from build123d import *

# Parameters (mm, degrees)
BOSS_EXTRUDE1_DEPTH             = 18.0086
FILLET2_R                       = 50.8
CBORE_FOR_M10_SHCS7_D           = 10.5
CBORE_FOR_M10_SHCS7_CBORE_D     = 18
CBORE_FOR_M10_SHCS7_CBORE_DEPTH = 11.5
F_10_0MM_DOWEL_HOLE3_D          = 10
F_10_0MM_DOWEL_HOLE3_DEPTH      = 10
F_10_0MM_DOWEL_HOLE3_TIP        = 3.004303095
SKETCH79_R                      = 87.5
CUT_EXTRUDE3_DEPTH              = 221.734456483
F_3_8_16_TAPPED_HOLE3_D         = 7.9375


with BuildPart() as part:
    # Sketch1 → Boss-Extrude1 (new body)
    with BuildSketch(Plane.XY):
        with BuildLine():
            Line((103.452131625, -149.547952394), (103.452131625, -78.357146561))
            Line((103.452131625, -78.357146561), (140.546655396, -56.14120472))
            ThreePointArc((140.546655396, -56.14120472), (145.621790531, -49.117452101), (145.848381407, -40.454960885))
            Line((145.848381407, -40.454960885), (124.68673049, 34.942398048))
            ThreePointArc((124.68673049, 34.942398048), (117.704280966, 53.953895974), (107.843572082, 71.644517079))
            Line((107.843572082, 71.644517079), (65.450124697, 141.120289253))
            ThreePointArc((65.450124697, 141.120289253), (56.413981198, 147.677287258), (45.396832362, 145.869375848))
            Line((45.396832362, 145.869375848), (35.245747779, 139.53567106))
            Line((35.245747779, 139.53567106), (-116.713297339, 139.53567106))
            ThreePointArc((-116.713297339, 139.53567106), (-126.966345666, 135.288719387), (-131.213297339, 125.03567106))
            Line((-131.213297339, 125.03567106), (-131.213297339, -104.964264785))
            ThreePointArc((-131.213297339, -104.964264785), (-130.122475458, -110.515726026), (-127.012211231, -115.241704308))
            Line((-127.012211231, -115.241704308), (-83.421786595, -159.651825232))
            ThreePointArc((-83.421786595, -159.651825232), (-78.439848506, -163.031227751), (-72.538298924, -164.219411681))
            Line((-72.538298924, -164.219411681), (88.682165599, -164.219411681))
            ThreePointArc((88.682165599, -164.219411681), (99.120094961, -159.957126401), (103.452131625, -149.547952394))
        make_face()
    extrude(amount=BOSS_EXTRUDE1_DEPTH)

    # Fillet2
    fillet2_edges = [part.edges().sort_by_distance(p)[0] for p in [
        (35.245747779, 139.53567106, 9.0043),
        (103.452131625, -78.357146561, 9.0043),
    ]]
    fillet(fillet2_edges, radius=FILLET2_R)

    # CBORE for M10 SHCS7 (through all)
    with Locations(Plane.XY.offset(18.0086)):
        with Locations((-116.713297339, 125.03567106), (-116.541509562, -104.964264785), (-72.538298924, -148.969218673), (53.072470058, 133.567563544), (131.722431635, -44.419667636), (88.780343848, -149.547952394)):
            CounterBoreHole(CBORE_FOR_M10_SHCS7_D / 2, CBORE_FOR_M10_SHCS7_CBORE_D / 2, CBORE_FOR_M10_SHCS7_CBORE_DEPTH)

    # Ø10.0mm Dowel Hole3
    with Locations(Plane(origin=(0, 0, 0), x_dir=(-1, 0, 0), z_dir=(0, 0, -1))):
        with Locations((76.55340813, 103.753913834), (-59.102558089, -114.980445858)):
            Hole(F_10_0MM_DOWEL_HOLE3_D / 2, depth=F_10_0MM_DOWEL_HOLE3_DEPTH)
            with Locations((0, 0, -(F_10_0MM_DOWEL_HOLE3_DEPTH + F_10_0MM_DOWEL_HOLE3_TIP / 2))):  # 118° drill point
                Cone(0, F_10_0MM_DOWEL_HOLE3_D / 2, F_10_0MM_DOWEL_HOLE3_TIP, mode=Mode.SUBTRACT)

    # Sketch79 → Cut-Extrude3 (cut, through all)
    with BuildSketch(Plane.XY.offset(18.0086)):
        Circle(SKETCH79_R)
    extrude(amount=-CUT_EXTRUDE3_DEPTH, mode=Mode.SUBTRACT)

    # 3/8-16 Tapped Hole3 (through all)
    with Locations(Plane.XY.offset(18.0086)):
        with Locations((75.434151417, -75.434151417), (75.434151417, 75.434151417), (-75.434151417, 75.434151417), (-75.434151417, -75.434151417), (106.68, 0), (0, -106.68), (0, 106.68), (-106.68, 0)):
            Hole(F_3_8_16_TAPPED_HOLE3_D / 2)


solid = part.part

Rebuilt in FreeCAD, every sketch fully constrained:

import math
import FreeCAD as App
import Part
import Sketcher

V = App.Vector


def edges_at(feature, points):
    """Names of the edges that pass closest to the given points."""
    edges = feature.Shape.Edges
    near = lambda p: min(range(len(edges)), key=lambda i: edges[i].distToShape(Part.Vertex(*p))[0])
    return sorted({f"Edge{near(p) + 1}" for p in points})

doc = App.newDocument("Part")
body = doc.addObject("PartDesign::Body", "Body")

# Sketch on XY plane
sketch1 = body.newObject("Sketcher::SketchObject", "Sketch")
sketch1.AttachmentSupport = (doc.getObject("XY_Plane"), [""])
sketch1.MapMode = "FlatFace"
sketch1.addGeometry([
    Part.LineSegment(V(103.452132, -149.547952, 0), V(103.452132, -78.357147, 0)),  # 0
    Part.LineSegment(V(103.452132, -78.357147, 0), V(140.546655, -56.141205, 0)),  # 1
    Part.ArcOfCircle(Part.Circle(V(131.722432, -44.419668, 0), V(0, 0, 1), 14.671788), math.radians(-53.026784), math.radians(15.677749)),  # 2
    Part.LineSegment(V(145.848381, -40.454961, 0), V(124.68673, 34.942398, 0)),  # 3
    Part.ArcOfCircle(Part.Circle(V(-0.017035, -0.070199, 0), V(0, 0, 1), 129.525716), math.radians(15.682945), math.radians(33.61927)),  # 4
    Part.LineSegment(V(107.843572, 71.644517, 0), V(65.450125, 141.120289, 0)),  # 5
    Part.ArcOfCircle(Part.Circle(V(53.07247, 133.567564, 0), V(0, 0, 1), 14.5), math.radians(31.39114), math.radians(121.961839)),  # 6
    Part.LineSegment(V(45.396832, 145.869376, 0), V(35.245748, 139.535671, 0)),  # 7
    Part.LineSegment(V(35.245748, 139.535671, 0), V(-116.713297, 139.535671, 0)),  # 8
    Part.ArcOfCircle(Part.Circle(V(-116.713297, 125.035671, 0), V(0, 0, 1), 14.5), math.radians(90), math.radians(180)),  # 9
    Part.LineSegment(V(-131.213297, 125.035671, 0), V(-131.213297, -104.964265, 0)),  # 10
    Part.ArcOfCircle(Part.Circle(V(-116.54151, -104.964265, 0), V(0, 0, 1), 14.671788), math.radians(180), math.radians(224.466324)),  # 11
    Part.LineSegment(V(-127.012211, -115.241704, 0), V(-83.421787, -159.651825, 0)),  # 12
    Part.ArcOfCircle(Part.Circle(V(-72.538299, -148.969219, 0), V(0, 0, 1), 15.250193), math.radians(-135.533676), math.radians(-90)),  # 13
    Part.LineSegment(V(-72.538299, -164.219412, 0), V(88.682166, -164.219412, 0)),  # 14
    Part.ArcOfCircle(Part.Circle(V(88.780344, -149.547952, 0), V(0, 0, 1), 14.671788), math.radians(-90.383405), math.radians(0)),  # 15
], False)
sketch1.addConstraint([
    Sketcher.Constraint("Coincident", 0, 2, 1, 1),
    Sketcher.Constraint("Coincident", 1, 2, 2, 1),
    Sketcher.Constraint("Coincident", 2, 2, 3, 1),
    Sketcher.Constraint("Coincident", 3, 2, 4, 1),
    Sketcher.Constraint("Coincident", 4, 2, 5, 1),
    Sketcher.Constraint("Coincident", 5, 2, 6, 1),
    Sketcher.Constraint("Coincident", 6, 2, 7, 1),
    Sketcher.Constraint("Coincident", 7, 2, 8, 1),
    Sketcher.Constraint("Coincident", 8, 2, 9, 1),
    Sketcher.Constraint("Coincident", 9, 2, 10, 1),
    Sketcher.Constraint("Coincident", 10, 2, 11, 1),
    Sketcher.Constraint("Coincident", 11, 2, 12, 1),
    Sketcher.Constraint("Coincident", 12, 2, 13, 1),
    Sketcher.Constraint("Coincident", 13, 2, 14, 1),
    Sketcher.Constraint("Coincident", 14, 2, 15, 1),
    Sketcher.Constraint("Coincident", 15, 2, 0, 1),
    Sketcher.Constraint("Vertical", 0),
    Sketcher.Constraint("Horizontal", 8),
    Sketcher.Constraint("Vertical", 10),
    Sketcher.Constraint("Horizontal", 14),
    Sketcher.Constraint("Radius", 6, 14.5),
    Sketcher.Constraint("Radius", 9, 14.5),
    Sketcher.Constraint("DistanceX", 9, 2, 8, 2, 14.5),
    Sketcher.Constraint("DistanceY", 9, 2, 8, 2, 14.5),
    Sketcher.Constraint("Radius", 2, 14.671788),
    Sketcher.Constraint("Radius", 4, 129.525716),
    Sketcher.Constraint("Radius", 11, 14.671788),
    Sketcher.Constraint("Radius", 13, 15.250193),
    Sketcher.Constraint("Radius", 15, 14.671788),
    Sketcher.Constraint("DistanceX", 9, 3, 13, 3, 44.174998),
    Sketcher.Constraint("DistanceX", 10, 2, 13, 2, 58.674998),
    Sketcher.Constraint("DistanceY", 4, 3, -1, 1, 0.070199),
    Sketcher.Constraint("DistanceX", 13, 3, -1, 1, 72.538299),
    Sketcher.Constraint("DistanceY", -1, 1, 3, 2, 34.942398),
    Sketcher.Constraint("DistanceX", 0, 2, 2, 3, 28.2703),
    Sketcher.Constraint("DistanceX", 3, 2, 2, 3, 7.035701),
    Sketcher.Constraint("DistanceX", 6, 2, 3, 2, 79.289898),
    Sketcher.Constraint("DistanceX", 11, 2, 11, 3, 10.470702),
    Sketcher.Constraint("Distance", 12, 62.228482),
    Sketcher.Constraint("DistanceX", 8, 2, 8, 1, 151.959045),
    Sketcher.Constraint("DistanceX", 14, 1, 14, 2, 161.220465),
    Sketcher.Constraint("DistanceY", 0, 1, 0, 2, 71.190806),
    Sketcher.Constraint("DistanceY", 10, 2, 10, 1, 229.999936),
    Sketcher.Constraint("DistanceX", -1, 1, 2, 3, 131.722432),
    Sketcher.Constraint("DistanceX", -1, 1, 6, 3, 53.07247),
    Sketcher.Constraint("DistanceY", -1, 1, 9, 3, 125.035671),
    Sketcher.Constraint("DistanceY", 13, 3, -1, 1, 148.969219),
    Sketcher.Constraint("DistanceX", -1, 1, 2, 2, 145.848381),
    Sketcher.Constraint("DistanceY", 2, 2, -1, 1, 40.454961),
    Sketcher.Constraint("DistanceY", -1, 1, 5, 2, 141.120289),
    Sketcher.Constraint("DistanceY", 2, 3, 6, 3, 177.987231),
    Sketcher.Constraint("DistanceY", 11, 3, 6, 3, 238.531828),
    Sketcher.Constraint("DistanceY", 0, 2, 2, 3, 33.937479),
    Sketcher.Constraint("DistanceY", 0, 2, 1, 2, 22.215942),
    Sketcher.Constraint("DistanceX", 4, 2, 3, 2, 16.843158),
])
pad1 = body.newObject("PartDesign::Pad", "Pad")
pad1.Profile = sketch1
pad1.Length = 18.0086
doc.recompute()

fillet = body.newObject("PartDesign::Fillet", "Fillet")
fillet.Base = (pad1, edges_at(pad1, [(35.246, 139.536, 9.004), (103.452, -78.357, 9.004)]))
fillet.Radius = 50.8

# Sketch on XY plane
sketch2 = body.newObject("Sketcher::SketchObject", "Sketch001")
sketch2.AttachmentSupport = (doc.getObject("XY_Plane"), [""])
sketch2.MapMode = "FlatFace"
sketch2.AttachmentOffset = App.Placement(V(0, 0, 18.0086), App.Rotation())
sketch2.addGeometry([
    Part.Circle(V(-117, 125, 0), V(0, 0, 1), 5),  # 0
    Part.Circle(V(-117, -105, 0), V(0, 0, 1), 5),  # 1
    Part.Circle(V(-73, -149, 0), V(0, 0, 1), 5),  # 2
    Part.Circle(V(53, 134, 0), V(0, 0, 1), 5),  # 3
    Part.Circle(V(132, -44, 0), V(0, 0, 1), 5),  # 4
    Part.Circle(V(89, -150, 0), V(0, 0, 1), 5),  # 5
], False)
sketch2.addConstraint([
    Sketcher.Constraint("Equal", 0, 1),
    Sketcher.Constraint("Equal", 1, 2),
    Sketcher.Constraint("Equal", 2, 3),
    Sketcher.Constraint("Equal", 3, 4),
    Sketcher.Constraint("Equal", 4, 5),
    Sketcher.Constraint("Diameter", 0, 10.5),
    Sketcher.Constraint("DistanceX", 0, 3, 2, 3, 44.174998),
    Sketcher.Constraint("DistanceX", 2, 3, -1, 1, 72.538299),
    Sketcher.Constraint("DistanceY", -1, 1, 0, 3, 125.035671),
    Sketcher.Constraint("DistanceX", 1, 3, -1, 1, 116.54151),
    Sketcher.Constraint("DistanceY", 2, 3, -1, 1, 148.969219),
    Sketcher.Constraint("DistanceX", -1, 1, 3, 3, 53.07247),
    Sketcher.Constraint("DistanceX", -1, 1, 4, 3, 131.722432),
    Sketcher.Constraint("DistanceY", 1, 3, 3, 3, 238.531828),
    Sketcher.Constraint("DistanceY", 4, 3, 3, 3, 177.987231),
    Sketcher.Constraint("DistanceY", 2, 3, 4, 3, 104.549551),
    Sketcher.Constraint("DistanceX", 0, 3, 5, 3, 205.493641),
    Sketcher.Constraint("DistanceY", 5, 3, -1, 1, 149.547952),
])
doc.recompute()
hole = body.newObject("PartDesign::Hole", "Hole")
hole.Profile = sketch2
hole.ThreadType = "None"
hole.Diameter = 10.5
hole.DepthType = "ThroughAll"
hole.HoleCutType = "Counterbore"
hole.HoleCutDiameter = 18
hole.HoleCutDepth = 11.5

# Sketch on XY plane
sketch3 = body.newObject("Sketcher::SketchObject", "Sketch002")
sketch3.AttachmentSupport = (doc.getObject("XY_Plane"), [""])
sketch3.MapMode = "FlatFace"
sketch3.addGeometry([
    Part.Circle(V(-77, 104, 0), V(0, 0, 1), 5),
    Part.Circle(V(59, -115, 0), V(0, 0, 1), 5),
], False)
sketch3.addConstraint([
    Sketcher.Constraint("Equal", 0, 1),
    Sketcher.Constraint("Diameter", 0, 10.0),
    Sketcher.Constraint("DistanceX", 0, 3, -1, 1, 76.553408),
    Sketcher.Constraint("DistanceX", -1, 1, 1, 3, 59.102558),
    Sketcher.Constraint("DistanceY", 1, 3, 0, 3, 218.73436),
    Sketcher.Constraint("DistanceY", -1, 1, 0, 3, 103.753914),
])
doc.recompute()
hole2 = body.newObject("PartDesign::Hole", "Hole001")
hole2.Profile = sketch3
hole2.ThreadType = "None"
hole2.Diameter = 10
hole2.DepthType = "Dimension"
hole2.Depth = 10
hole2.DrillPoint = "Angled"
hole2.DrillPointAngle = 118
hole2.Reversed = True

# Sketch on XY plane
sketch4 = body.newObject("Sketcher::SketchObject", "Sketch003")
sketch4.AttachmentSupport = (doc.getObject("XY_Plane"), [""])
sketch4.MapMode = "FlatFace"
sketch4.AttachmentOffset = App.Placement(V(0, 0, 18.0086), App.Rotation())
sketch4.addGeometry(Part.Circle(V(0, 0, 0), V(0, 0, 1), 88), False)
sketch4.addConstraint([
    Sketcher.Constraint("Coincident", 0, 3, -1, 1),
    Sketcher.Constraint("Diameter", 0, 175.0),
])
pocket1 = body.newObject("PartDesign::Pocket", "Pocket")
pocket1.Profile = sketch4
pocket1.Type = "ThroughAll"

# Sketch on XY plane
sketch5 = body.newObject("Sketcher::SketchObject", "Sketch004")
sketch5.AttachmentSupport = (doc.getObject("XY_Plane"), [""])
sketch5.MapMode = "FlatFace"
sketch5.AttachmentOffset = App.Placement(V(0, 0, 18.0086), App.Rotation())
sketch5.addGeometry([
    Part.Circle(V(75.4, -75.4, 0), V(0, 0, 1), 4),  # 0
    Part.Circle(V(75.4, 75.4, 0), V(0, 0, 1), 4),  # 1
    Part.Circle(V(-75.4, 75.4, 0), V(0, 0, 1), 4),  # 2
    Part.Circle(V(-75.4, -75.4, 0), V(0, 0, 1), 4),  # 3
    Part.Circle(V(106.7, 0, 0), V(0, 0, 1), 4),  # 4
    Part.Circle(V(0, -106.7, 0), V(0, 0, 1), 4),  # 5
    Part.Circle(V(0, 106.7, 0), V(0, 0, 1), 4),  # 6
    Part.Circle(V(-106.7, 0, 0), V(0, 0, 1), 4),  # 7
], False)
sketch5.addConstraint([
    Sketcher.Constraint("Equal", 0, 1),
    Sketcher.Constraint("Equal", 1, 2),
    Sketcher.Constraint("Equal", 2, 3),
    Sketcher.Constraint("Equal", 3, 4),
    Sketcher.Constraint("Equal", 4, 5),
    Sketcher.Constraint("Equal", 5, 6),
    Sketcher.Constraint("Equal", 6, 7),
    Sketcher.Constraint("Symmetric", 0, 3, 2, 3, -1, 1),
    Sketcher.Constraint("Symmetric", 1, 3, 3, 3, -1, 1),
    Sketcher.Constraint("Symmetric", 5, 3, 6, 3, -1, 1),
    Sketcher.Constraint("Symmetric", 4, 3, 7, 3, -1, 1),
    Sketcher.Constraint("Symmetric", 1, 3, 2, 3, -2),
    Sketcher.Constraint("PointOnObject", 4, 3, -1),
    Sketcher.Constraint("PointOnObject", 5, 3, -2),
    Sketcher.Constraint("Diameter", 0, 7.9375),
    Sketcher.Constraint("DistanceX", -1, 1, 4, 3, 106.68),
    Sketcher.Constraint("DistanceY", 5, 3, -1, 1, 106.68),
    Sketcher.Constraint("DistanceX", -1, 1, 0, 3, 75.434151),
    Sketcher.Constraint("DistanceY", 0, 3, -1, 1, 75.434151),
])
doc.recompute()
hole3 = body.newObject("PartDesign::Hole", "Hole002")
hole3.Profile = sketch5
hole3.ThreadType = "None"
hole3.Diameter = 7.9375
hole3.DepthType = "ThroughAll"

doc.recompute()
